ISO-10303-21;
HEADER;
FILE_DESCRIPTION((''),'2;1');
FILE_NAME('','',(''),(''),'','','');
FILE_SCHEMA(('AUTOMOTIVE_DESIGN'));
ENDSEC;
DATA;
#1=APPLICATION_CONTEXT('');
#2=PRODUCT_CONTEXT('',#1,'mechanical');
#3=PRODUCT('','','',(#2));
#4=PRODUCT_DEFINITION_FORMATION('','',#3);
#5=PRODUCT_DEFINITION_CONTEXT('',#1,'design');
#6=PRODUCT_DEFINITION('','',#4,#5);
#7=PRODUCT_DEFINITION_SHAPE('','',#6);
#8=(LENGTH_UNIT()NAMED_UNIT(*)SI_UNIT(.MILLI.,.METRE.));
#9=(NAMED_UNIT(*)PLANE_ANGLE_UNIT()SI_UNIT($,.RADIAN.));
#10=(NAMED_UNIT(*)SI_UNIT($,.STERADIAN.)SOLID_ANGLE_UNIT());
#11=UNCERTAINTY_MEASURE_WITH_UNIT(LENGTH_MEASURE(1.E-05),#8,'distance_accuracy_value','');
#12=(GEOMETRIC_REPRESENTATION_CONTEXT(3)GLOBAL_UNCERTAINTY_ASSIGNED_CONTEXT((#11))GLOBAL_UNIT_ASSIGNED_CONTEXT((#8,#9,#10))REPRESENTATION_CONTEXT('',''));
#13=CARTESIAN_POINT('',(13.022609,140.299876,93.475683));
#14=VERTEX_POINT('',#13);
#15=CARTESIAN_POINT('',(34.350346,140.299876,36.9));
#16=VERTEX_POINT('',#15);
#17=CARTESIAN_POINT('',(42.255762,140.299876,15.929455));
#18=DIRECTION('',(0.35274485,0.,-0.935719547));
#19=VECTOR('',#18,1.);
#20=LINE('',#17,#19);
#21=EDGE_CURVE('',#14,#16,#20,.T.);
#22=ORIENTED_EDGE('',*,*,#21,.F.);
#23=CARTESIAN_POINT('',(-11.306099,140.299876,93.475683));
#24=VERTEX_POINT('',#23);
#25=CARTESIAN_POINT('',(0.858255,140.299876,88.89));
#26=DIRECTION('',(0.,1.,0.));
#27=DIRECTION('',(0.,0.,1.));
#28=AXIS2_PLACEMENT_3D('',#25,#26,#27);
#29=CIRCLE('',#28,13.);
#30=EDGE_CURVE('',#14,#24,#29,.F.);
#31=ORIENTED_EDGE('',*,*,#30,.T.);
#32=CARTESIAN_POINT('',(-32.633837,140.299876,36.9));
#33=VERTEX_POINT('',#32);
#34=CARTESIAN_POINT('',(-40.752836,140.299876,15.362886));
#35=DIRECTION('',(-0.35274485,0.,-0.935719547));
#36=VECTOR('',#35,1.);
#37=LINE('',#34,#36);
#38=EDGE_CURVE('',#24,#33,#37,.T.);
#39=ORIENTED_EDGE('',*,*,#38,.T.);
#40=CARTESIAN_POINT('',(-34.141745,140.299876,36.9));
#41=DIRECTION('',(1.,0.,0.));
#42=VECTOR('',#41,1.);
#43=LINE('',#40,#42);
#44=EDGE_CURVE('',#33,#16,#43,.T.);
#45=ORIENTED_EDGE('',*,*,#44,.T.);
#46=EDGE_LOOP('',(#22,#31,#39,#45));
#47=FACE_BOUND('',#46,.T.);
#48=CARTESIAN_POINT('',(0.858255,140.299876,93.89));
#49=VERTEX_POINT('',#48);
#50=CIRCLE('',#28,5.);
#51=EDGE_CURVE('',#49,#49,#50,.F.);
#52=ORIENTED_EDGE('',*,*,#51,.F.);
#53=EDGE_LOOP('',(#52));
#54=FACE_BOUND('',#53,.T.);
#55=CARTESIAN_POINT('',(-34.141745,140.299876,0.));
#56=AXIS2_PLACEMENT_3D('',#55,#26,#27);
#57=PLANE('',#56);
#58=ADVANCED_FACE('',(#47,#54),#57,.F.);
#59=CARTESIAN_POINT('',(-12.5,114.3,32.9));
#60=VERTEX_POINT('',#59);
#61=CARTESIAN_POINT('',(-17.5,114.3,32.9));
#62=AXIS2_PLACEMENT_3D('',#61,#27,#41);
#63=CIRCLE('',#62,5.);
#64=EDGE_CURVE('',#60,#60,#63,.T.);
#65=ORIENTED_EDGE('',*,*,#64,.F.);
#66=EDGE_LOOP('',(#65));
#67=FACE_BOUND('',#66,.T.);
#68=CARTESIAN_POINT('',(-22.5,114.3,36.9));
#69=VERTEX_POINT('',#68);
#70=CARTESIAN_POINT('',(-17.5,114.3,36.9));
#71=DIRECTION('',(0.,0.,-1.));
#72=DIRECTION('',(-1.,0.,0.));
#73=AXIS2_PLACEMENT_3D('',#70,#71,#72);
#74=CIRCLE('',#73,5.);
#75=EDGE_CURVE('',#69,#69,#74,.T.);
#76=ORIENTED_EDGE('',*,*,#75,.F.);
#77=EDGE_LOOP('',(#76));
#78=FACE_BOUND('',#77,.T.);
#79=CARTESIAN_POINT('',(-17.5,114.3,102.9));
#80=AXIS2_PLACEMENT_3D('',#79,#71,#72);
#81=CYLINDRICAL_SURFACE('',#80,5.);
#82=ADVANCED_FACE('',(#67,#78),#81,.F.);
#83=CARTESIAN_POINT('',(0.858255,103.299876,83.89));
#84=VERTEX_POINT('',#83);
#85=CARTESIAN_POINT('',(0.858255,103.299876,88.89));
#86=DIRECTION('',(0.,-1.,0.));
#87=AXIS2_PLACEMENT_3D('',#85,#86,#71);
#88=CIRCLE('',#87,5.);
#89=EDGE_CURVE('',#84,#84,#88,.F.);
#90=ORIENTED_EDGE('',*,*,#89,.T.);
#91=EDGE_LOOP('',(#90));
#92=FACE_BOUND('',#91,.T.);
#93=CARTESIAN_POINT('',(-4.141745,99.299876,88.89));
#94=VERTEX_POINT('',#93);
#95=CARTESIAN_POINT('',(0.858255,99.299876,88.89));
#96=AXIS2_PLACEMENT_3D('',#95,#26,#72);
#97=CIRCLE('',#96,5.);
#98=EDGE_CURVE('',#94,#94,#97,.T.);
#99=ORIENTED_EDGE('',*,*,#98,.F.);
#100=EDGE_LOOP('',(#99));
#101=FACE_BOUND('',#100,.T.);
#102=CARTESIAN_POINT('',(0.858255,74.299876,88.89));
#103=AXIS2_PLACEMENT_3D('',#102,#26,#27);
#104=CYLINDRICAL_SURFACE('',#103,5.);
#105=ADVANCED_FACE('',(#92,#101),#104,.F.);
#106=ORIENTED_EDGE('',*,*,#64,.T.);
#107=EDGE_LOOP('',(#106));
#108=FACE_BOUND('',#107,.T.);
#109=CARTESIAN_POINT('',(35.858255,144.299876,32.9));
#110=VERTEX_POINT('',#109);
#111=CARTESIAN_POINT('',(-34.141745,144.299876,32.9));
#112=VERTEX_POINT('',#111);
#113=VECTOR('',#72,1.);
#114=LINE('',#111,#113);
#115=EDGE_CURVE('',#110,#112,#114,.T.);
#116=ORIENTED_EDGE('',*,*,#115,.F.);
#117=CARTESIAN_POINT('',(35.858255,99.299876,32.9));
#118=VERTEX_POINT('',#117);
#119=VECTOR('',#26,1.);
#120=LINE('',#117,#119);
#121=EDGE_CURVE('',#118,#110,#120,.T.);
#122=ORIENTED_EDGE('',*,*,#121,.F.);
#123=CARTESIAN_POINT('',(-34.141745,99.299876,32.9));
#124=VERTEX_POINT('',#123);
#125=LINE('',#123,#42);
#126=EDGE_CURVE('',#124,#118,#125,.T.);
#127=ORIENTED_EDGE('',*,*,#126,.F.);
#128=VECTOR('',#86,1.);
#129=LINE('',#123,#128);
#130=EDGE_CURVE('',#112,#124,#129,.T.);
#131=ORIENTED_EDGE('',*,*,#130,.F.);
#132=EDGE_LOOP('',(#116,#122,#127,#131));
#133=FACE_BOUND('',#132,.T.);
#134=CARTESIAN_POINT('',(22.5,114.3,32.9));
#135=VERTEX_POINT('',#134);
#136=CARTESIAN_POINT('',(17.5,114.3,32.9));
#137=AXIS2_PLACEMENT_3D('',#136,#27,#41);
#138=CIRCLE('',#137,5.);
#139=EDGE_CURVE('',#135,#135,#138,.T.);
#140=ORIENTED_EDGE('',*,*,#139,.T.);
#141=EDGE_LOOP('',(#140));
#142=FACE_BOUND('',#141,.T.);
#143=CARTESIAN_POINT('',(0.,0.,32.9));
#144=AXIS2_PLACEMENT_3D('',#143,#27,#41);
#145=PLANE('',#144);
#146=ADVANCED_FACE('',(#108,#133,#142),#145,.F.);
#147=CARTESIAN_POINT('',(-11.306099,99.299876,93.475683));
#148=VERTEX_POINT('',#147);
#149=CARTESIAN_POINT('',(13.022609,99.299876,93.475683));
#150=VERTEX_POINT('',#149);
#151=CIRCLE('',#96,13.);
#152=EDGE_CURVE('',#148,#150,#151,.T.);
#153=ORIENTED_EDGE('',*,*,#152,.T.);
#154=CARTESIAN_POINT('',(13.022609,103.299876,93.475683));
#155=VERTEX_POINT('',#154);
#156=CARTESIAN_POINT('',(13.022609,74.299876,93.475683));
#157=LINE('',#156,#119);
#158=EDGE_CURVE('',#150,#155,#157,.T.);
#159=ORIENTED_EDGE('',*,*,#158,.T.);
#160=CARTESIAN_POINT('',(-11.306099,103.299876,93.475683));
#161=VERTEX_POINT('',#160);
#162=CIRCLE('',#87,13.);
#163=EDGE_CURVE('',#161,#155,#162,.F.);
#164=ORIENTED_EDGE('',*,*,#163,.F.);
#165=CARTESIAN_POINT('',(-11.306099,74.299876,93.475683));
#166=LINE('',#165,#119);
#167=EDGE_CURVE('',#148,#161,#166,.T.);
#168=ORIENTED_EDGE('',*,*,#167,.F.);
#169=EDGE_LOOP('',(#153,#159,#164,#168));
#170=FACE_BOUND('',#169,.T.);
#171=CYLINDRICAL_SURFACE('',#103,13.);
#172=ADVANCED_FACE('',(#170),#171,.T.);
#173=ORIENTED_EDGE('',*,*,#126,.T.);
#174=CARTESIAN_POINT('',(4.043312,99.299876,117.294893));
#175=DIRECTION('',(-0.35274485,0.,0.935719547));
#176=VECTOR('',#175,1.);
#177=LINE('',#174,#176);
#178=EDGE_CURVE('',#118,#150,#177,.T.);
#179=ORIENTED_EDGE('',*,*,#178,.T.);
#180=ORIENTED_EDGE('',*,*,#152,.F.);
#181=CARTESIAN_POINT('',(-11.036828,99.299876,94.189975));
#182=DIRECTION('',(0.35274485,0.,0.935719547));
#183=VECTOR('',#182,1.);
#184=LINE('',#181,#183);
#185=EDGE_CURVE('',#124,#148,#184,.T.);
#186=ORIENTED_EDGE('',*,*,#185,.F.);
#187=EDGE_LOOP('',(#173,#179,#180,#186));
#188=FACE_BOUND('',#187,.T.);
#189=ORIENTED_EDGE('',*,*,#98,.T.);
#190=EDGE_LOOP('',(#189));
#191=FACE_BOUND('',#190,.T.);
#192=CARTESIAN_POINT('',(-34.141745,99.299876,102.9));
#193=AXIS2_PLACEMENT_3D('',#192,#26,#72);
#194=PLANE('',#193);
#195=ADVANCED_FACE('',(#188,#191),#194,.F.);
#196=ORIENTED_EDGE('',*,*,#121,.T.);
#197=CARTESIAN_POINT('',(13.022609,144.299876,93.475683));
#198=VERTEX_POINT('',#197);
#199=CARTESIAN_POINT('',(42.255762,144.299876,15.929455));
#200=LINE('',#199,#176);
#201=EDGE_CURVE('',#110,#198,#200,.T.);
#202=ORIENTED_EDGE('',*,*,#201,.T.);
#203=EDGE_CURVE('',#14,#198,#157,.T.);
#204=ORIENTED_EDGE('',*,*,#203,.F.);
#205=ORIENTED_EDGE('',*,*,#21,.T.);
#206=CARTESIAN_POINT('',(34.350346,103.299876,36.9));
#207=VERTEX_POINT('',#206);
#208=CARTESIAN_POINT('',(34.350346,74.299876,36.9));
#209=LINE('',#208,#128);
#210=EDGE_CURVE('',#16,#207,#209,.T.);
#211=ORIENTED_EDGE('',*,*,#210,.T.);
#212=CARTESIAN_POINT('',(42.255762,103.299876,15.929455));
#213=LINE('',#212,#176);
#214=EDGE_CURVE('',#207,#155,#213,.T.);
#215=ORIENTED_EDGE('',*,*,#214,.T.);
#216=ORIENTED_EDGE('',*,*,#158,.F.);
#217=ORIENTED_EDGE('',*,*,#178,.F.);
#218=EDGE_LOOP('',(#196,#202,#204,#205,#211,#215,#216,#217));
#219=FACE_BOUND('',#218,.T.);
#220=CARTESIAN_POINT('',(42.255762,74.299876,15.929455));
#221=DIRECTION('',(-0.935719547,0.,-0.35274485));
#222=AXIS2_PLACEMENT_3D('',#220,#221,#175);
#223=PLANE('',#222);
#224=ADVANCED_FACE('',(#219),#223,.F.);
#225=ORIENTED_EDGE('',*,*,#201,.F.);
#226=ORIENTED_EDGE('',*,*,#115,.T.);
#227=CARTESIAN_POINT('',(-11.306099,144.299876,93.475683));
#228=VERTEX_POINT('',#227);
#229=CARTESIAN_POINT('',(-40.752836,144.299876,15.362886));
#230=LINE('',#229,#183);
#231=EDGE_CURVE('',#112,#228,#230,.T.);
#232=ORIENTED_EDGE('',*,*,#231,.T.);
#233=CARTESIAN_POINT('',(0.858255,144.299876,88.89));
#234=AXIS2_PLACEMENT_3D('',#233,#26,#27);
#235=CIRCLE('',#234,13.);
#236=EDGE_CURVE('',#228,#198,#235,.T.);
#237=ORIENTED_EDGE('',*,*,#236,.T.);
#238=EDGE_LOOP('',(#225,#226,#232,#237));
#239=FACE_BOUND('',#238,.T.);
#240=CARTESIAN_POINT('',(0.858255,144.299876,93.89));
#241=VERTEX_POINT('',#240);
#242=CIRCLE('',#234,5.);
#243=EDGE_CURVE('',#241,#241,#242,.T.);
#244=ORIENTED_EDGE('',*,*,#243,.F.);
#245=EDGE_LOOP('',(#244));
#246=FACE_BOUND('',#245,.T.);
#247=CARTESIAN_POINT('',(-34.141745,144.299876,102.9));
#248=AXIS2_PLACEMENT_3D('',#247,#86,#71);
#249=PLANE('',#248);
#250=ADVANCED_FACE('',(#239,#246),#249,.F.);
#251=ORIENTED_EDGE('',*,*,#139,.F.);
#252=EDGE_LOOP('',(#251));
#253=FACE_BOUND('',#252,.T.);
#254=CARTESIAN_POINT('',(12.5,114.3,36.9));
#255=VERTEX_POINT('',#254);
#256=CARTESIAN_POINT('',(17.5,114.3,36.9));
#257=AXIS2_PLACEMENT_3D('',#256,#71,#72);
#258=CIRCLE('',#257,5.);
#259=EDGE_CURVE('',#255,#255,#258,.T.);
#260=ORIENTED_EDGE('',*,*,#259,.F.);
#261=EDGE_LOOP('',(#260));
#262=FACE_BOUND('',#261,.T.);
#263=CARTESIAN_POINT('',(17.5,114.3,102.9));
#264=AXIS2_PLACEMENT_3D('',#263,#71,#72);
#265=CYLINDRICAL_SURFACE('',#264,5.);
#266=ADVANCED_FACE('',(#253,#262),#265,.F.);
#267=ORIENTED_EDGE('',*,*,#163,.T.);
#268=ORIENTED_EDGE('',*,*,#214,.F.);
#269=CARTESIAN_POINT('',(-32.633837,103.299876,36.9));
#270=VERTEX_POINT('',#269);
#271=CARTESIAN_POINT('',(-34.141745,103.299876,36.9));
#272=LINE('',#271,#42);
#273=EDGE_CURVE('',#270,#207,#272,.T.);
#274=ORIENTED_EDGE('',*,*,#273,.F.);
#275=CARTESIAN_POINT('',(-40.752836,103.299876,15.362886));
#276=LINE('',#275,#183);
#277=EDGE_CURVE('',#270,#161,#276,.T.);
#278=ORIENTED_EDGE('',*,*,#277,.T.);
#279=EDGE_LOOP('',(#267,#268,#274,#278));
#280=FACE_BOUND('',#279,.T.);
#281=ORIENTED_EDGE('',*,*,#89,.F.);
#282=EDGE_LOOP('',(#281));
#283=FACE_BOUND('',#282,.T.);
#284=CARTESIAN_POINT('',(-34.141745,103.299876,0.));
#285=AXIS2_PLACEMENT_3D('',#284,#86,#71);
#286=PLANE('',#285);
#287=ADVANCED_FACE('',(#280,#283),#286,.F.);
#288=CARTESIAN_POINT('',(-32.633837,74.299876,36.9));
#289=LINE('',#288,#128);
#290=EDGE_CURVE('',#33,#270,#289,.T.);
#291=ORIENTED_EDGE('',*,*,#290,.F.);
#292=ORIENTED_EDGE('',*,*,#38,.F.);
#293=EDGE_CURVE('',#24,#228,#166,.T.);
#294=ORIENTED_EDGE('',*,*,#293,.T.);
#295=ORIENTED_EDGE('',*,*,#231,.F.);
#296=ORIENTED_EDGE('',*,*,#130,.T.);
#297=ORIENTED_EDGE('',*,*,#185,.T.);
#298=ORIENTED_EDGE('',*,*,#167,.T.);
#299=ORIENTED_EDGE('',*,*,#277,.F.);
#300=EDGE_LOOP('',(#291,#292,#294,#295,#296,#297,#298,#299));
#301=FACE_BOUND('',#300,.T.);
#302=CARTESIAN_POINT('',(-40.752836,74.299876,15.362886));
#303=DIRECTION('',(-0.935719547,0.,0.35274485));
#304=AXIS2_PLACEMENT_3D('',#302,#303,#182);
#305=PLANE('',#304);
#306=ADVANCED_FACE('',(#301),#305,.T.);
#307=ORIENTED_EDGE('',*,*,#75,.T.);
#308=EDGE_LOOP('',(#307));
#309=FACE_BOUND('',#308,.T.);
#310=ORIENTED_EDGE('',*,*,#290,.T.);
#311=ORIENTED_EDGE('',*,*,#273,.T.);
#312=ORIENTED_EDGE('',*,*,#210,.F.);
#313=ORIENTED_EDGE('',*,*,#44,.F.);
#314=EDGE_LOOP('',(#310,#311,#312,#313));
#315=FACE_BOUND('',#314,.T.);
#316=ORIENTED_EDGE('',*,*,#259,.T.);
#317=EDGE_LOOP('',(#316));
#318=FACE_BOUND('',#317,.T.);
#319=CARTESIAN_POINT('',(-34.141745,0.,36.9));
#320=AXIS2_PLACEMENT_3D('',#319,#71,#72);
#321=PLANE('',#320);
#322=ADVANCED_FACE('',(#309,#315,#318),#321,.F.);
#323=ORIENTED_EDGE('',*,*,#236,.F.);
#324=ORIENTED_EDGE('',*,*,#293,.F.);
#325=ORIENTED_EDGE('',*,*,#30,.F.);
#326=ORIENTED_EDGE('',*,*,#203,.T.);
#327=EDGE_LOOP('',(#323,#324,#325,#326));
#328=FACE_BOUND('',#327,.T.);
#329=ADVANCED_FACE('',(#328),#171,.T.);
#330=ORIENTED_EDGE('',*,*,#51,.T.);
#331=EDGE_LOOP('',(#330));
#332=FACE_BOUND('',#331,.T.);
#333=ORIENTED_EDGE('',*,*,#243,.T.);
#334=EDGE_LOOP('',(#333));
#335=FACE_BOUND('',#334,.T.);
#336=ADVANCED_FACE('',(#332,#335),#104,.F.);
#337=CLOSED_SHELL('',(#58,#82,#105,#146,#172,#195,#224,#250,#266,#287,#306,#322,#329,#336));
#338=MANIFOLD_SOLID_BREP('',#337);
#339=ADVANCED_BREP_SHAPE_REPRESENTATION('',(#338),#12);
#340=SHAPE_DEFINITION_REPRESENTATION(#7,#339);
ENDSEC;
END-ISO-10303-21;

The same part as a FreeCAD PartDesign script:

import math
import FreeCAD as App
import Part
import Sketcher
from FreeCAD import Vector
Q = App.Units.Quantity


def add_polygon(sketch, points):
    """Adds a closed chain of lines whose ends are joined by coincident constraints."""
    first, n = sketch.GeometryCount, len(points)
    for a, b in zip(points, points[1:] + points[:1]):
        sketch.addGeometry(Part.LineSegment(App.Vector(*a, 0), App.Vector(*b, 0)), False)
    for i in range(n):
        sketch.addConstraint(Sketcher.Constraint("Coincident", first + i, 2, first + (i + 1) % n, 1))

doc = App.newDocument("Part")
params = doc.addObject("Spreadsheet::Sheet", "Params")
for row, (alias, value) in enumerate([
    ("sketch1_diameter", "10 mm"),
    ("sketch1_width", "70 mm"),
    ("sketch1_height", "45 mm"),
    ("pad1_length", "70 mm"),
    ("sketch2_diameter", "10 mm"),
    ("sketch2_radius", "13 mm"),
    ("sketch2_width", "70 mm"),
    ("pocket1_length", "70 mm"),
    ("sketch3_width", "37 mm"),
], start=1):
    params.set(f"A{row}", alias)
    params.set(f"B{row}", "=" + value)
    params.setAlias(f"B{row}", alias)

body = doc.addObject("PartDesign::Body", "Body")

sketch1 = body.newObject("Sketcher::SketchObject", "Sketch")
sketch1.AttachmentSupport = (doc.getObject("XY_Plane"), [""])
sketch1.MapMode = "FlatFace"
sketch1.AttachmentOffset = App.Placement(Vector(0, 0, 32.9), App.Rotation())
add_polygon(sketch1, [(-34, 144), (-34, 99), (36, 99), (36, 144)])
sketch1.addGeometry(Part.Circle(Vector(-18, 114, 0), Vector(0, 0, 1), 5), False)
sketch1.addGeometry(Part.Circle(Vector(18, 114, 0), Vector(0, 0, 1), 5), False)
sketch1.addConstraint(Sketcher.Constraint("Vertical", 0))
sketch1.addConstraint(Sketcher.Constraint("Horizontal", 1))
sketch1.addConstraint(Sketcher.Constraint("Vertical", 2))
sketch1.addConstraint(Sketcher.Constraint("Horizontal", 3))
sketch1.addConstraint(Sketcher.Constraint("Equal", 4, 5))
sketch1.addConstraint(Sketcher.Constraint("Symmetric", 4, 3, 5, 3, -2))
sketch1.addConstraint(Sketcher.Constraint("Diameter", 4, Q("10 mm")))
sketch1.addConstraint(Sketcher.Constraint("DistanceX", 1, 1, 1, 2, Q("70 mm")))
sketch1.addConstraint(Sketcher.Constraint("DistanceY", 0, 2, 0, 1, Q("45 mm")))
sketch1.addConstraint(Sketcher.Constraint("DistanceX", 4, 3, 5, 3, Q("35 mm")))
sketch1.addConstraint(Sketcher.Constraint("DistanceY", -1, 1, 4, 3, Q("114.3 mm")))
sketch1.addConstraint(Sketcher.Constraint("DistanceX", 0, 2, -1, 1, Q("34.141745 mm")))
sketch1.addConstraint(Sketcher.Constraint("DistanceY", -1, 1, 0, 2, Q("99.299876 mm")))
sketch1.setExpression("Constraints[10]", "Params.sketch1_diameter")
sketch1.setExpression("Constraints[11]", "Params.sketch1_width")
sketch1.setExpression("Constraints[12]", "Params.sketch1_height")
pad1 = body.newObject("PartDesign::Pad", "Pad")
pad1.Profile = sketch1
pad1.setExpression("Length", "Params.pad1_length")

sketch2 = body.newObject("Sketcher::SketchObject", "Sketch001")
sketch2.AttachmentSupport = (doc.getObject("XZ_Plane"), [""])
sketch2.MapMode = "FlatFace"
sketch2.AttachmentOffset = App.Placement(Vector(0, 0, -144.299876), App.Rotation())
sketch2.addGeometry(Part.LineSegment(Vector(36, 103, 0), Vector(36, 33, 0)), False)
sketch2.addGeometry(Part.LineSegment(Vector(36, 33, 0), Vector(13, 93, 0)), False)
sketch2.addGeometry(Part.ArcOfCircle(Part.Circle(Vector(1, 89, 0), Vector(0, 0, 1), 13), math.radians(21), math.radians(90)), False)
sketch2.addGeometry(Part.ArcOfCircle(Part.Circle(Vector(1, 89, 0), Vector(0, 0, 1), 13), math.radians(90), math.radians(159)), False)
sketch2.addGeometry(Part.LineSegment(Vector(-11, 93, 0), Vector(-34, 33, 0)), False)
sketch2.addGeometry(Part.LineSegment(Vector(-34, 33, 0), Vector(-34, 103, 0)), False)
sketch2.addGeometry(Part.LineSegment(Vector(-34, 103, 0), Vector(36, 103, 0)), False)
sketch2.addGeometry(Part.Circle(Vector(1, 89, 0), Vector(0, 0, 1), 5), False)
sketch2.addConstraint(Sketcher.Constraint("Coincident", 0, 2, 1, 1))
sketch2.addConstraint(Sketcher.Constraint("Tangent", 1, 2, 2, 1))
sketch2.addConstraint(Sketcher.Constraint("Tangent", 2, 2, 3, 1))
sketch2.addConstraint(Sketcher.Constraint("Tangent", 3, 2, 4, 1))
sketch2.addConstraint(Sketcher.Constraint("Coincident", 4, 2, 5, 1))
sketch2.addConstraint(Sketcher.Constraint("Coincident", 5, 2, 6, 1))
sketch2.addConstraint(Sketcher.Constraint("Coincident", 6, 2, 0, 1))
sketch2.addConstraint(Sketcher.Constraint("Vertical", 0))
sketch2.addConstraint(Sketcher.Constraint("Vertical", 5))
sketch2.addConstraint(Sketcher.Constraint("Horizontal", 6))
sketch2.addConstraint(Sketcher.Constraint("Coincident", 7, 3, 2, 3))
sketch2.addConstraint(Sketcher.Constraint("Equal", 2, 3))
sketch2.addConstraint(Sketcher.Constraint("Horizontal", 1, 2, 3, 2))
sketch2.addConstraint(Sketcher.Constraint("Horizontal", 0, 2, 4, 2))
sketch2.addConstraint(Sketcher.Constraint("Vertical", 7, 3, 2, 2))
sketch2.addConstraint(Sketcher.Constraint("Equal", 6, 0))
sketch2.addConstraint(Sketcher.Constraint("Diameter", 7, Q("10 mm")))
sketch2.addConstraint(Sketcher.Constraint("Radius", 2, Q("13 mm")))
sketch2.addConstraint(Sketcher.Constraint("DistanceX", 6, 1, 6, 2, Q("70 mm")))
sketch2.addConstraint(Sketcher.Constraint("DistanceY", -1, 1, 0, 2, Q("32.9 mm")))
sketch2.addConstraint(Sketcher.Constraint("DistanceY", -1, 1, 2, 3, Q("88.89 mm")))
sketch2.addConstraint(Sketcher.Constraint("DistanceX", 3, 2, -1, 1, Q("11.306099 mm")))
sketch2.setExpression("Constraints[16]", "Params.sketch2_diameter")
sketch2.setExpression("Constraints[17]", "Params.sketch2_radius")
sketch2.setExpression("Constraints[18]", "Params.sketch2_width")
pocket1 = body.newObject("PartDesign::Pocket", "Pocket")
pocket1.Profile = sketch2
pocket1.setExpression("Length", "Params.pocket1_length")
pocket1.Reversed = True

sketch3 = body.newObject("Sketcher::SketchObject", "Sketch002")
sketch3.AttachmentSupport = (doc.getObject("YZ_Plane"), [""])
sketch3.MapMode = "FlatFace"
add_polygon(sketch3, [(140, 109), (103, 109), (103, 37), (140, 37)])
sketch3.addConstraint(Sketcher.Constraint("Horizontal", 0))
sketch3.addConstraint(Sketcher.Constraint("Vertical", 1))
sketch3.addConstraint(Sketcher.Constraint("Horizontal", 2))
sketch3.addConstraint(Sketcher.Constraint("Vertical", 3))
sketch3.addConstraint(Sketcher.Constraint("DistanceX", 0, 2, 0, 1, Q("37 mm")))
sketch3.addConstraint(Sketcher.Constraint("DistanceY", -1, 1, 1, 2, Q("36.9 mm")))
sketch3.addConstraint(Sketcher.Constraint("DistanceY", 1, 2, 1, 1, Q("72.23556 mm")))
sketch3.addConstraint(Sketcher.Constraint("DistanceX", -1, 1, 0, 2, Q("103.299876 mm")))
sketch3.setExpression("Constraints[8]", "Params.sketch3_width")
pocket2 = body.newObject("PartDesign::Pocket", "Pocket001")
pocket2.Profile = sketch3
pocket2.Type = "ThroughAll"
pocket2.Midplane = True

doc.recompute()
